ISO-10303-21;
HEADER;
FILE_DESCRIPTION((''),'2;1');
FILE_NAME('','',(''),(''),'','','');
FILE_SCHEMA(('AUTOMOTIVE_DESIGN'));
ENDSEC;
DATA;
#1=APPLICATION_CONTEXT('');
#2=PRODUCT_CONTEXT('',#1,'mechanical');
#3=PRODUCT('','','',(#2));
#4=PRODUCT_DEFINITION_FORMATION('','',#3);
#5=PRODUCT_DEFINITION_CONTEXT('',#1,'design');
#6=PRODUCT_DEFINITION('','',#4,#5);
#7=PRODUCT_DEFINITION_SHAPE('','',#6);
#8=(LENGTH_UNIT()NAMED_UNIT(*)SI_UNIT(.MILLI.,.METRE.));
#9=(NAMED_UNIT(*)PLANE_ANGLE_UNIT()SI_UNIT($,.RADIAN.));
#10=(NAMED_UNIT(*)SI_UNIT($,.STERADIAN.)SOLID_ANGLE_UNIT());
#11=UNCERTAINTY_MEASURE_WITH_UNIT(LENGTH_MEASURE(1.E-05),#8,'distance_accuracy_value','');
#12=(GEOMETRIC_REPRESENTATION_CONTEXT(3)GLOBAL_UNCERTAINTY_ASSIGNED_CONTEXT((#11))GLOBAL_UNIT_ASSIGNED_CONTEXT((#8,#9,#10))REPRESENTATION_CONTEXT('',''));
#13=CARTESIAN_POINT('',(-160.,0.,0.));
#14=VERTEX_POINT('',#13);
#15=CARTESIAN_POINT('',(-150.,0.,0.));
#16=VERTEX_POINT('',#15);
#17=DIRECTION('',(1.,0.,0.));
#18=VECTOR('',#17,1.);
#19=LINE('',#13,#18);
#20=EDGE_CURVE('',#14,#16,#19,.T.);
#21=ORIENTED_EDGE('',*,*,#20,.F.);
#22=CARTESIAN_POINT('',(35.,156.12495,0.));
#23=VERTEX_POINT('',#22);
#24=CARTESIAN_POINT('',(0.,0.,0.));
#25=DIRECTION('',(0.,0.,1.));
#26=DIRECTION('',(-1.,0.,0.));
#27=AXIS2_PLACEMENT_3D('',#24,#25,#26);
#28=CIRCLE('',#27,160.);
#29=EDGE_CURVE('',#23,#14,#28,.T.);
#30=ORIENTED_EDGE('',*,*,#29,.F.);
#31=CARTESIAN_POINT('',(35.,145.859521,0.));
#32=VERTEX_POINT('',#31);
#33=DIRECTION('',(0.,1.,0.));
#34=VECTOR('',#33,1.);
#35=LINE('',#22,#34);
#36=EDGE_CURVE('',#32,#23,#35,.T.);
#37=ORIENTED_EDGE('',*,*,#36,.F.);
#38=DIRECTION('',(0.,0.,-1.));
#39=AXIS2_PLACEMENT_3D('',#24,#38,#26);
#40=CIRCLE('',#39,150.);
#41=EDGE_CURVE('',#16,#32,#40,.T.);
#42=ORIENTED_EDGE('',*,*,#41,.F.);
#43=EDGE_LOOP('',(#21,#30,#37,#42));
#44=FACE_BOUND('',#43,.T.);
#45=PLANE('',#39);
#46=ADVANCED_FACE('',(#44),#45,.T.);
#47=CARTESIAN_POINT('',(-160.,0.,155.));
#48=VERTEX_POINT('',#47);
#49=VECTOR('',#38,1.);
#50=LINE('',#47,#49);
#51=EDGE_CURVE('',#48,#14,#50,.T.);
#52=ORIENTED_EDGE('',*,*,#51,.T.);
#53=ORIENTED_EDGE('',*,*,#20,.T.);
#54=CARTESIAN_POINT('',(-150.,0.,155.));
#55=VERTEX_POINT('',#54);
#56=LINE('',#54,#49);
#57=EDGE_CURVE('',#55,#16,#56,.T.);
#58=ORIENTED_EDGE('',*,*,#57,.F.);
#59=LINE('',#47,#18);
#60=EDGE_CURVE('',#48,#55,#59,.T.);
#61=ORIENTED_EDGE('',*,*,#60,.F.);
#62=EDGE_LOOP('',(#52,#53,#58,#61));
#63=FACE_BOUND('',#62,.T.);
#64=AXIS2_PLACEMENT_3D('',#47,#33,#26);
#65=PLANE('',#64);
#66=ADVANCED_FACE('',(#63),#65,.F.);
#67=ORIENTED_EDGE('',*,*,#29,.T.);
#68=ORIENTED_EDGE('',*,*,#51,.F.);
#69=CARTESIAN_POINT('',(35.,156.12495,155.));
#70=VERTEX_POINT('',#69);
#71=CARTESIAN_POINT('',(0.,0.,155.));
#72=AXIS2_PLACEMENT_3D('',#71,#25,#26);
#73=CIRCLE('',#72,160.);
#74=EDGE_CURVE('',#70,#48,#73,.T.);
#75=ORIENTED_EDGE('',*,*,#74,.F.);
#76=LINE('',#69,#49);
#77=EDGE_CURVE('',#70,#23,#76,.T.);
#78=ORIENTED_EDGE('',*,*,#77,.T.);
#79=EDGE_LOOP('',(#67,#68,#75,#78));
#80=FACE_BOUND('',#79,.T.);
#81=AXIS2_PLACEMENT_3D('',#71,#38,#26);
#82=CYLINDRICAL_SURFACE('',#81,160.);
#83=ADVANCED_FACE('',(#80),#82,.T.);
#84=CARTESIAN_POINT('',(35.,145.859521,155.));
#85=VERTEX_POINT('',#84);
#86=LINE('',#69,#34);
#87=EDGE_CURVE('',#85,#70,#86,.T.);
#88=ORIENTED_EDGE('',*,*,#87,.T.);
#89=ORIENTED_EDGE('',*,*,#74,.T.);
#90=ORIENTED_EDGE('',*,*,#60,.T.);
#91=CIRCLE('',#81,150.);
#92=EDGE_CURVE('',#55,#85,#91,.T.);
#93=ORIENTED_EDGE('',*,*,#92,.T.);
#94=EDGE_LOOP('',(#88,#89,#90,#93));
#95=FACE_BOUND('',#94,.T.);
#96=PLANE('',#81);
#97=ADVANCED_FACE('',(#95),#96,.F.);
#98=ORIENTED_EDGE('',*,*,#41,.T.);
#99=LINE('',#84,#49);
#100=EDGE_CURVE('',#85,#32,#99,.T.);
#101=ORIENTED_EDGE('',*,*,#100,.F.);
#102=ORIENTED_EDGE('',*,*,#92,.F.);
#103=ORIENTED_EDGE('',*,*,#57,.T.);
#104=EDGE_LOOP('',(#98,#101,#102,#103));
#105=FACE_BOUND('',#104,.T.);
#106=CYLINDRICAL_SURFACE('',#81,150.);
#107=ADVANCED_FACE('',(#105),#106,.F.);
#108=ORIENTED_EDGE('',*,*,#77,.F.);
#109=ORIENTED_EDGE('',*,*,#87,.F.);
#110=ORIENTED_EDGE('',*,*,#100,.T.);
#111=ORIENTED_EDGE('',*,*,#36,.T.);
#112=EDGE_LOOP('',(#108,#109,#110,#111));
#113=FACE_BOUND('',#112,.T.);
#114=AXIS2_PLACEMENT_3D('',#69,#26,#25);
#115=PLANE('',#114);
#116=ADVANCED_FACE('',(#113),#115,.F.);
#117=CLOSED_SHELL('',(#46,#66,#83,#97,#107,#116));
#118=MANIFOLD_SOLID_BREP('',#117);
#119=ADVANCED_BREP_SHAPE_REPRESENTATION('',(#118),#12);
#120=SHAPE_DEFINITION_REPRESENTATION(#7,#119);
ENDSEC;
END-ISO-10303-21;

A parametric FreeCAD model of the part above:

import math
import FreeCAD as App
import Part
import Sketcher

doc = App.newDocument("Part")
body = doc.addObject("PartDesign::Body", "Body")

sketch1 = doc.addObject("Sketcher::SketchObject", "Sketch")
body.addObject(sketch1)
sketch1.AttachmentSupport = (doc.XY_Plane, [""])
sketch1.MapMode = "FlatFace"
sketch1.addGeometry(Part.LineSegment(App.Vector(35, 146, 0), App.Vector(35, 156, 0)), False)
sketch1.addGeometry(Part.ArcOfCircle(Part.Circle(App.Vector(0, 0, 0), App.Vector(0, 0, 1), 160), math.radians(77), math.radians(180)), False)
sketch1.addGeometry(Part.LineSegment(App.Vector(-160, 0, 0), App.Vector(-150, 0, 0)), False)
sketch1.addGeometry(Part.ArcOfCircle(Part.Circle(App.Vector(0, 0, 0), App.Vector(0, 0, 1), 150), math.radians(77), math.radians(180)), False)
sketch1.addConstraint(Sketcher.Constraint("Coincident", 0, 2, 1, 1))
sketch1.addConstraint(Sketcher.Constraint("Coincident", 1, 2, 2, 1))
sketch1.addConstraint(Sketcher.Constraint("Coincident", 2, 2, 3, 2))
sketch1.addConstraint(Sketcher.Constraint("Coincident", 3, 1, 0, 1))
sketch1.addConstraint(Sketcher.Constraint("Vertical", 0))
sketch1.addConstraint(Sketcher.Constraint("Horizontal", 2))
sketch1.addConstraint(Sketcher.Constraint("Coincident", 1, 3, -1, 1))
sketch1.addConstraint(Sketcher.Constraint("Coincident", 3, 3, -1, 1))
sketch1.addConstraint(Sketcher.Constraint("PointOnObject", 1, 2, -1))
sketch1.addConstraint(Sketcher.Constraint("Radius", 1, 160.0))
sketch1.addConstraint(Sketcher.Constraint("Radius", 3, 150.0))
sketch1.addConstraint(Sketcher.Constraint("DistanceX", -1, 1, 0, 2, 35.0))
pad1 = doc.addObject("PartDesign::Pad", "Pad")
body.addObject(pad1)
pad1.Profile = sketch1
pad1.Length = 155

doc.recompute()
